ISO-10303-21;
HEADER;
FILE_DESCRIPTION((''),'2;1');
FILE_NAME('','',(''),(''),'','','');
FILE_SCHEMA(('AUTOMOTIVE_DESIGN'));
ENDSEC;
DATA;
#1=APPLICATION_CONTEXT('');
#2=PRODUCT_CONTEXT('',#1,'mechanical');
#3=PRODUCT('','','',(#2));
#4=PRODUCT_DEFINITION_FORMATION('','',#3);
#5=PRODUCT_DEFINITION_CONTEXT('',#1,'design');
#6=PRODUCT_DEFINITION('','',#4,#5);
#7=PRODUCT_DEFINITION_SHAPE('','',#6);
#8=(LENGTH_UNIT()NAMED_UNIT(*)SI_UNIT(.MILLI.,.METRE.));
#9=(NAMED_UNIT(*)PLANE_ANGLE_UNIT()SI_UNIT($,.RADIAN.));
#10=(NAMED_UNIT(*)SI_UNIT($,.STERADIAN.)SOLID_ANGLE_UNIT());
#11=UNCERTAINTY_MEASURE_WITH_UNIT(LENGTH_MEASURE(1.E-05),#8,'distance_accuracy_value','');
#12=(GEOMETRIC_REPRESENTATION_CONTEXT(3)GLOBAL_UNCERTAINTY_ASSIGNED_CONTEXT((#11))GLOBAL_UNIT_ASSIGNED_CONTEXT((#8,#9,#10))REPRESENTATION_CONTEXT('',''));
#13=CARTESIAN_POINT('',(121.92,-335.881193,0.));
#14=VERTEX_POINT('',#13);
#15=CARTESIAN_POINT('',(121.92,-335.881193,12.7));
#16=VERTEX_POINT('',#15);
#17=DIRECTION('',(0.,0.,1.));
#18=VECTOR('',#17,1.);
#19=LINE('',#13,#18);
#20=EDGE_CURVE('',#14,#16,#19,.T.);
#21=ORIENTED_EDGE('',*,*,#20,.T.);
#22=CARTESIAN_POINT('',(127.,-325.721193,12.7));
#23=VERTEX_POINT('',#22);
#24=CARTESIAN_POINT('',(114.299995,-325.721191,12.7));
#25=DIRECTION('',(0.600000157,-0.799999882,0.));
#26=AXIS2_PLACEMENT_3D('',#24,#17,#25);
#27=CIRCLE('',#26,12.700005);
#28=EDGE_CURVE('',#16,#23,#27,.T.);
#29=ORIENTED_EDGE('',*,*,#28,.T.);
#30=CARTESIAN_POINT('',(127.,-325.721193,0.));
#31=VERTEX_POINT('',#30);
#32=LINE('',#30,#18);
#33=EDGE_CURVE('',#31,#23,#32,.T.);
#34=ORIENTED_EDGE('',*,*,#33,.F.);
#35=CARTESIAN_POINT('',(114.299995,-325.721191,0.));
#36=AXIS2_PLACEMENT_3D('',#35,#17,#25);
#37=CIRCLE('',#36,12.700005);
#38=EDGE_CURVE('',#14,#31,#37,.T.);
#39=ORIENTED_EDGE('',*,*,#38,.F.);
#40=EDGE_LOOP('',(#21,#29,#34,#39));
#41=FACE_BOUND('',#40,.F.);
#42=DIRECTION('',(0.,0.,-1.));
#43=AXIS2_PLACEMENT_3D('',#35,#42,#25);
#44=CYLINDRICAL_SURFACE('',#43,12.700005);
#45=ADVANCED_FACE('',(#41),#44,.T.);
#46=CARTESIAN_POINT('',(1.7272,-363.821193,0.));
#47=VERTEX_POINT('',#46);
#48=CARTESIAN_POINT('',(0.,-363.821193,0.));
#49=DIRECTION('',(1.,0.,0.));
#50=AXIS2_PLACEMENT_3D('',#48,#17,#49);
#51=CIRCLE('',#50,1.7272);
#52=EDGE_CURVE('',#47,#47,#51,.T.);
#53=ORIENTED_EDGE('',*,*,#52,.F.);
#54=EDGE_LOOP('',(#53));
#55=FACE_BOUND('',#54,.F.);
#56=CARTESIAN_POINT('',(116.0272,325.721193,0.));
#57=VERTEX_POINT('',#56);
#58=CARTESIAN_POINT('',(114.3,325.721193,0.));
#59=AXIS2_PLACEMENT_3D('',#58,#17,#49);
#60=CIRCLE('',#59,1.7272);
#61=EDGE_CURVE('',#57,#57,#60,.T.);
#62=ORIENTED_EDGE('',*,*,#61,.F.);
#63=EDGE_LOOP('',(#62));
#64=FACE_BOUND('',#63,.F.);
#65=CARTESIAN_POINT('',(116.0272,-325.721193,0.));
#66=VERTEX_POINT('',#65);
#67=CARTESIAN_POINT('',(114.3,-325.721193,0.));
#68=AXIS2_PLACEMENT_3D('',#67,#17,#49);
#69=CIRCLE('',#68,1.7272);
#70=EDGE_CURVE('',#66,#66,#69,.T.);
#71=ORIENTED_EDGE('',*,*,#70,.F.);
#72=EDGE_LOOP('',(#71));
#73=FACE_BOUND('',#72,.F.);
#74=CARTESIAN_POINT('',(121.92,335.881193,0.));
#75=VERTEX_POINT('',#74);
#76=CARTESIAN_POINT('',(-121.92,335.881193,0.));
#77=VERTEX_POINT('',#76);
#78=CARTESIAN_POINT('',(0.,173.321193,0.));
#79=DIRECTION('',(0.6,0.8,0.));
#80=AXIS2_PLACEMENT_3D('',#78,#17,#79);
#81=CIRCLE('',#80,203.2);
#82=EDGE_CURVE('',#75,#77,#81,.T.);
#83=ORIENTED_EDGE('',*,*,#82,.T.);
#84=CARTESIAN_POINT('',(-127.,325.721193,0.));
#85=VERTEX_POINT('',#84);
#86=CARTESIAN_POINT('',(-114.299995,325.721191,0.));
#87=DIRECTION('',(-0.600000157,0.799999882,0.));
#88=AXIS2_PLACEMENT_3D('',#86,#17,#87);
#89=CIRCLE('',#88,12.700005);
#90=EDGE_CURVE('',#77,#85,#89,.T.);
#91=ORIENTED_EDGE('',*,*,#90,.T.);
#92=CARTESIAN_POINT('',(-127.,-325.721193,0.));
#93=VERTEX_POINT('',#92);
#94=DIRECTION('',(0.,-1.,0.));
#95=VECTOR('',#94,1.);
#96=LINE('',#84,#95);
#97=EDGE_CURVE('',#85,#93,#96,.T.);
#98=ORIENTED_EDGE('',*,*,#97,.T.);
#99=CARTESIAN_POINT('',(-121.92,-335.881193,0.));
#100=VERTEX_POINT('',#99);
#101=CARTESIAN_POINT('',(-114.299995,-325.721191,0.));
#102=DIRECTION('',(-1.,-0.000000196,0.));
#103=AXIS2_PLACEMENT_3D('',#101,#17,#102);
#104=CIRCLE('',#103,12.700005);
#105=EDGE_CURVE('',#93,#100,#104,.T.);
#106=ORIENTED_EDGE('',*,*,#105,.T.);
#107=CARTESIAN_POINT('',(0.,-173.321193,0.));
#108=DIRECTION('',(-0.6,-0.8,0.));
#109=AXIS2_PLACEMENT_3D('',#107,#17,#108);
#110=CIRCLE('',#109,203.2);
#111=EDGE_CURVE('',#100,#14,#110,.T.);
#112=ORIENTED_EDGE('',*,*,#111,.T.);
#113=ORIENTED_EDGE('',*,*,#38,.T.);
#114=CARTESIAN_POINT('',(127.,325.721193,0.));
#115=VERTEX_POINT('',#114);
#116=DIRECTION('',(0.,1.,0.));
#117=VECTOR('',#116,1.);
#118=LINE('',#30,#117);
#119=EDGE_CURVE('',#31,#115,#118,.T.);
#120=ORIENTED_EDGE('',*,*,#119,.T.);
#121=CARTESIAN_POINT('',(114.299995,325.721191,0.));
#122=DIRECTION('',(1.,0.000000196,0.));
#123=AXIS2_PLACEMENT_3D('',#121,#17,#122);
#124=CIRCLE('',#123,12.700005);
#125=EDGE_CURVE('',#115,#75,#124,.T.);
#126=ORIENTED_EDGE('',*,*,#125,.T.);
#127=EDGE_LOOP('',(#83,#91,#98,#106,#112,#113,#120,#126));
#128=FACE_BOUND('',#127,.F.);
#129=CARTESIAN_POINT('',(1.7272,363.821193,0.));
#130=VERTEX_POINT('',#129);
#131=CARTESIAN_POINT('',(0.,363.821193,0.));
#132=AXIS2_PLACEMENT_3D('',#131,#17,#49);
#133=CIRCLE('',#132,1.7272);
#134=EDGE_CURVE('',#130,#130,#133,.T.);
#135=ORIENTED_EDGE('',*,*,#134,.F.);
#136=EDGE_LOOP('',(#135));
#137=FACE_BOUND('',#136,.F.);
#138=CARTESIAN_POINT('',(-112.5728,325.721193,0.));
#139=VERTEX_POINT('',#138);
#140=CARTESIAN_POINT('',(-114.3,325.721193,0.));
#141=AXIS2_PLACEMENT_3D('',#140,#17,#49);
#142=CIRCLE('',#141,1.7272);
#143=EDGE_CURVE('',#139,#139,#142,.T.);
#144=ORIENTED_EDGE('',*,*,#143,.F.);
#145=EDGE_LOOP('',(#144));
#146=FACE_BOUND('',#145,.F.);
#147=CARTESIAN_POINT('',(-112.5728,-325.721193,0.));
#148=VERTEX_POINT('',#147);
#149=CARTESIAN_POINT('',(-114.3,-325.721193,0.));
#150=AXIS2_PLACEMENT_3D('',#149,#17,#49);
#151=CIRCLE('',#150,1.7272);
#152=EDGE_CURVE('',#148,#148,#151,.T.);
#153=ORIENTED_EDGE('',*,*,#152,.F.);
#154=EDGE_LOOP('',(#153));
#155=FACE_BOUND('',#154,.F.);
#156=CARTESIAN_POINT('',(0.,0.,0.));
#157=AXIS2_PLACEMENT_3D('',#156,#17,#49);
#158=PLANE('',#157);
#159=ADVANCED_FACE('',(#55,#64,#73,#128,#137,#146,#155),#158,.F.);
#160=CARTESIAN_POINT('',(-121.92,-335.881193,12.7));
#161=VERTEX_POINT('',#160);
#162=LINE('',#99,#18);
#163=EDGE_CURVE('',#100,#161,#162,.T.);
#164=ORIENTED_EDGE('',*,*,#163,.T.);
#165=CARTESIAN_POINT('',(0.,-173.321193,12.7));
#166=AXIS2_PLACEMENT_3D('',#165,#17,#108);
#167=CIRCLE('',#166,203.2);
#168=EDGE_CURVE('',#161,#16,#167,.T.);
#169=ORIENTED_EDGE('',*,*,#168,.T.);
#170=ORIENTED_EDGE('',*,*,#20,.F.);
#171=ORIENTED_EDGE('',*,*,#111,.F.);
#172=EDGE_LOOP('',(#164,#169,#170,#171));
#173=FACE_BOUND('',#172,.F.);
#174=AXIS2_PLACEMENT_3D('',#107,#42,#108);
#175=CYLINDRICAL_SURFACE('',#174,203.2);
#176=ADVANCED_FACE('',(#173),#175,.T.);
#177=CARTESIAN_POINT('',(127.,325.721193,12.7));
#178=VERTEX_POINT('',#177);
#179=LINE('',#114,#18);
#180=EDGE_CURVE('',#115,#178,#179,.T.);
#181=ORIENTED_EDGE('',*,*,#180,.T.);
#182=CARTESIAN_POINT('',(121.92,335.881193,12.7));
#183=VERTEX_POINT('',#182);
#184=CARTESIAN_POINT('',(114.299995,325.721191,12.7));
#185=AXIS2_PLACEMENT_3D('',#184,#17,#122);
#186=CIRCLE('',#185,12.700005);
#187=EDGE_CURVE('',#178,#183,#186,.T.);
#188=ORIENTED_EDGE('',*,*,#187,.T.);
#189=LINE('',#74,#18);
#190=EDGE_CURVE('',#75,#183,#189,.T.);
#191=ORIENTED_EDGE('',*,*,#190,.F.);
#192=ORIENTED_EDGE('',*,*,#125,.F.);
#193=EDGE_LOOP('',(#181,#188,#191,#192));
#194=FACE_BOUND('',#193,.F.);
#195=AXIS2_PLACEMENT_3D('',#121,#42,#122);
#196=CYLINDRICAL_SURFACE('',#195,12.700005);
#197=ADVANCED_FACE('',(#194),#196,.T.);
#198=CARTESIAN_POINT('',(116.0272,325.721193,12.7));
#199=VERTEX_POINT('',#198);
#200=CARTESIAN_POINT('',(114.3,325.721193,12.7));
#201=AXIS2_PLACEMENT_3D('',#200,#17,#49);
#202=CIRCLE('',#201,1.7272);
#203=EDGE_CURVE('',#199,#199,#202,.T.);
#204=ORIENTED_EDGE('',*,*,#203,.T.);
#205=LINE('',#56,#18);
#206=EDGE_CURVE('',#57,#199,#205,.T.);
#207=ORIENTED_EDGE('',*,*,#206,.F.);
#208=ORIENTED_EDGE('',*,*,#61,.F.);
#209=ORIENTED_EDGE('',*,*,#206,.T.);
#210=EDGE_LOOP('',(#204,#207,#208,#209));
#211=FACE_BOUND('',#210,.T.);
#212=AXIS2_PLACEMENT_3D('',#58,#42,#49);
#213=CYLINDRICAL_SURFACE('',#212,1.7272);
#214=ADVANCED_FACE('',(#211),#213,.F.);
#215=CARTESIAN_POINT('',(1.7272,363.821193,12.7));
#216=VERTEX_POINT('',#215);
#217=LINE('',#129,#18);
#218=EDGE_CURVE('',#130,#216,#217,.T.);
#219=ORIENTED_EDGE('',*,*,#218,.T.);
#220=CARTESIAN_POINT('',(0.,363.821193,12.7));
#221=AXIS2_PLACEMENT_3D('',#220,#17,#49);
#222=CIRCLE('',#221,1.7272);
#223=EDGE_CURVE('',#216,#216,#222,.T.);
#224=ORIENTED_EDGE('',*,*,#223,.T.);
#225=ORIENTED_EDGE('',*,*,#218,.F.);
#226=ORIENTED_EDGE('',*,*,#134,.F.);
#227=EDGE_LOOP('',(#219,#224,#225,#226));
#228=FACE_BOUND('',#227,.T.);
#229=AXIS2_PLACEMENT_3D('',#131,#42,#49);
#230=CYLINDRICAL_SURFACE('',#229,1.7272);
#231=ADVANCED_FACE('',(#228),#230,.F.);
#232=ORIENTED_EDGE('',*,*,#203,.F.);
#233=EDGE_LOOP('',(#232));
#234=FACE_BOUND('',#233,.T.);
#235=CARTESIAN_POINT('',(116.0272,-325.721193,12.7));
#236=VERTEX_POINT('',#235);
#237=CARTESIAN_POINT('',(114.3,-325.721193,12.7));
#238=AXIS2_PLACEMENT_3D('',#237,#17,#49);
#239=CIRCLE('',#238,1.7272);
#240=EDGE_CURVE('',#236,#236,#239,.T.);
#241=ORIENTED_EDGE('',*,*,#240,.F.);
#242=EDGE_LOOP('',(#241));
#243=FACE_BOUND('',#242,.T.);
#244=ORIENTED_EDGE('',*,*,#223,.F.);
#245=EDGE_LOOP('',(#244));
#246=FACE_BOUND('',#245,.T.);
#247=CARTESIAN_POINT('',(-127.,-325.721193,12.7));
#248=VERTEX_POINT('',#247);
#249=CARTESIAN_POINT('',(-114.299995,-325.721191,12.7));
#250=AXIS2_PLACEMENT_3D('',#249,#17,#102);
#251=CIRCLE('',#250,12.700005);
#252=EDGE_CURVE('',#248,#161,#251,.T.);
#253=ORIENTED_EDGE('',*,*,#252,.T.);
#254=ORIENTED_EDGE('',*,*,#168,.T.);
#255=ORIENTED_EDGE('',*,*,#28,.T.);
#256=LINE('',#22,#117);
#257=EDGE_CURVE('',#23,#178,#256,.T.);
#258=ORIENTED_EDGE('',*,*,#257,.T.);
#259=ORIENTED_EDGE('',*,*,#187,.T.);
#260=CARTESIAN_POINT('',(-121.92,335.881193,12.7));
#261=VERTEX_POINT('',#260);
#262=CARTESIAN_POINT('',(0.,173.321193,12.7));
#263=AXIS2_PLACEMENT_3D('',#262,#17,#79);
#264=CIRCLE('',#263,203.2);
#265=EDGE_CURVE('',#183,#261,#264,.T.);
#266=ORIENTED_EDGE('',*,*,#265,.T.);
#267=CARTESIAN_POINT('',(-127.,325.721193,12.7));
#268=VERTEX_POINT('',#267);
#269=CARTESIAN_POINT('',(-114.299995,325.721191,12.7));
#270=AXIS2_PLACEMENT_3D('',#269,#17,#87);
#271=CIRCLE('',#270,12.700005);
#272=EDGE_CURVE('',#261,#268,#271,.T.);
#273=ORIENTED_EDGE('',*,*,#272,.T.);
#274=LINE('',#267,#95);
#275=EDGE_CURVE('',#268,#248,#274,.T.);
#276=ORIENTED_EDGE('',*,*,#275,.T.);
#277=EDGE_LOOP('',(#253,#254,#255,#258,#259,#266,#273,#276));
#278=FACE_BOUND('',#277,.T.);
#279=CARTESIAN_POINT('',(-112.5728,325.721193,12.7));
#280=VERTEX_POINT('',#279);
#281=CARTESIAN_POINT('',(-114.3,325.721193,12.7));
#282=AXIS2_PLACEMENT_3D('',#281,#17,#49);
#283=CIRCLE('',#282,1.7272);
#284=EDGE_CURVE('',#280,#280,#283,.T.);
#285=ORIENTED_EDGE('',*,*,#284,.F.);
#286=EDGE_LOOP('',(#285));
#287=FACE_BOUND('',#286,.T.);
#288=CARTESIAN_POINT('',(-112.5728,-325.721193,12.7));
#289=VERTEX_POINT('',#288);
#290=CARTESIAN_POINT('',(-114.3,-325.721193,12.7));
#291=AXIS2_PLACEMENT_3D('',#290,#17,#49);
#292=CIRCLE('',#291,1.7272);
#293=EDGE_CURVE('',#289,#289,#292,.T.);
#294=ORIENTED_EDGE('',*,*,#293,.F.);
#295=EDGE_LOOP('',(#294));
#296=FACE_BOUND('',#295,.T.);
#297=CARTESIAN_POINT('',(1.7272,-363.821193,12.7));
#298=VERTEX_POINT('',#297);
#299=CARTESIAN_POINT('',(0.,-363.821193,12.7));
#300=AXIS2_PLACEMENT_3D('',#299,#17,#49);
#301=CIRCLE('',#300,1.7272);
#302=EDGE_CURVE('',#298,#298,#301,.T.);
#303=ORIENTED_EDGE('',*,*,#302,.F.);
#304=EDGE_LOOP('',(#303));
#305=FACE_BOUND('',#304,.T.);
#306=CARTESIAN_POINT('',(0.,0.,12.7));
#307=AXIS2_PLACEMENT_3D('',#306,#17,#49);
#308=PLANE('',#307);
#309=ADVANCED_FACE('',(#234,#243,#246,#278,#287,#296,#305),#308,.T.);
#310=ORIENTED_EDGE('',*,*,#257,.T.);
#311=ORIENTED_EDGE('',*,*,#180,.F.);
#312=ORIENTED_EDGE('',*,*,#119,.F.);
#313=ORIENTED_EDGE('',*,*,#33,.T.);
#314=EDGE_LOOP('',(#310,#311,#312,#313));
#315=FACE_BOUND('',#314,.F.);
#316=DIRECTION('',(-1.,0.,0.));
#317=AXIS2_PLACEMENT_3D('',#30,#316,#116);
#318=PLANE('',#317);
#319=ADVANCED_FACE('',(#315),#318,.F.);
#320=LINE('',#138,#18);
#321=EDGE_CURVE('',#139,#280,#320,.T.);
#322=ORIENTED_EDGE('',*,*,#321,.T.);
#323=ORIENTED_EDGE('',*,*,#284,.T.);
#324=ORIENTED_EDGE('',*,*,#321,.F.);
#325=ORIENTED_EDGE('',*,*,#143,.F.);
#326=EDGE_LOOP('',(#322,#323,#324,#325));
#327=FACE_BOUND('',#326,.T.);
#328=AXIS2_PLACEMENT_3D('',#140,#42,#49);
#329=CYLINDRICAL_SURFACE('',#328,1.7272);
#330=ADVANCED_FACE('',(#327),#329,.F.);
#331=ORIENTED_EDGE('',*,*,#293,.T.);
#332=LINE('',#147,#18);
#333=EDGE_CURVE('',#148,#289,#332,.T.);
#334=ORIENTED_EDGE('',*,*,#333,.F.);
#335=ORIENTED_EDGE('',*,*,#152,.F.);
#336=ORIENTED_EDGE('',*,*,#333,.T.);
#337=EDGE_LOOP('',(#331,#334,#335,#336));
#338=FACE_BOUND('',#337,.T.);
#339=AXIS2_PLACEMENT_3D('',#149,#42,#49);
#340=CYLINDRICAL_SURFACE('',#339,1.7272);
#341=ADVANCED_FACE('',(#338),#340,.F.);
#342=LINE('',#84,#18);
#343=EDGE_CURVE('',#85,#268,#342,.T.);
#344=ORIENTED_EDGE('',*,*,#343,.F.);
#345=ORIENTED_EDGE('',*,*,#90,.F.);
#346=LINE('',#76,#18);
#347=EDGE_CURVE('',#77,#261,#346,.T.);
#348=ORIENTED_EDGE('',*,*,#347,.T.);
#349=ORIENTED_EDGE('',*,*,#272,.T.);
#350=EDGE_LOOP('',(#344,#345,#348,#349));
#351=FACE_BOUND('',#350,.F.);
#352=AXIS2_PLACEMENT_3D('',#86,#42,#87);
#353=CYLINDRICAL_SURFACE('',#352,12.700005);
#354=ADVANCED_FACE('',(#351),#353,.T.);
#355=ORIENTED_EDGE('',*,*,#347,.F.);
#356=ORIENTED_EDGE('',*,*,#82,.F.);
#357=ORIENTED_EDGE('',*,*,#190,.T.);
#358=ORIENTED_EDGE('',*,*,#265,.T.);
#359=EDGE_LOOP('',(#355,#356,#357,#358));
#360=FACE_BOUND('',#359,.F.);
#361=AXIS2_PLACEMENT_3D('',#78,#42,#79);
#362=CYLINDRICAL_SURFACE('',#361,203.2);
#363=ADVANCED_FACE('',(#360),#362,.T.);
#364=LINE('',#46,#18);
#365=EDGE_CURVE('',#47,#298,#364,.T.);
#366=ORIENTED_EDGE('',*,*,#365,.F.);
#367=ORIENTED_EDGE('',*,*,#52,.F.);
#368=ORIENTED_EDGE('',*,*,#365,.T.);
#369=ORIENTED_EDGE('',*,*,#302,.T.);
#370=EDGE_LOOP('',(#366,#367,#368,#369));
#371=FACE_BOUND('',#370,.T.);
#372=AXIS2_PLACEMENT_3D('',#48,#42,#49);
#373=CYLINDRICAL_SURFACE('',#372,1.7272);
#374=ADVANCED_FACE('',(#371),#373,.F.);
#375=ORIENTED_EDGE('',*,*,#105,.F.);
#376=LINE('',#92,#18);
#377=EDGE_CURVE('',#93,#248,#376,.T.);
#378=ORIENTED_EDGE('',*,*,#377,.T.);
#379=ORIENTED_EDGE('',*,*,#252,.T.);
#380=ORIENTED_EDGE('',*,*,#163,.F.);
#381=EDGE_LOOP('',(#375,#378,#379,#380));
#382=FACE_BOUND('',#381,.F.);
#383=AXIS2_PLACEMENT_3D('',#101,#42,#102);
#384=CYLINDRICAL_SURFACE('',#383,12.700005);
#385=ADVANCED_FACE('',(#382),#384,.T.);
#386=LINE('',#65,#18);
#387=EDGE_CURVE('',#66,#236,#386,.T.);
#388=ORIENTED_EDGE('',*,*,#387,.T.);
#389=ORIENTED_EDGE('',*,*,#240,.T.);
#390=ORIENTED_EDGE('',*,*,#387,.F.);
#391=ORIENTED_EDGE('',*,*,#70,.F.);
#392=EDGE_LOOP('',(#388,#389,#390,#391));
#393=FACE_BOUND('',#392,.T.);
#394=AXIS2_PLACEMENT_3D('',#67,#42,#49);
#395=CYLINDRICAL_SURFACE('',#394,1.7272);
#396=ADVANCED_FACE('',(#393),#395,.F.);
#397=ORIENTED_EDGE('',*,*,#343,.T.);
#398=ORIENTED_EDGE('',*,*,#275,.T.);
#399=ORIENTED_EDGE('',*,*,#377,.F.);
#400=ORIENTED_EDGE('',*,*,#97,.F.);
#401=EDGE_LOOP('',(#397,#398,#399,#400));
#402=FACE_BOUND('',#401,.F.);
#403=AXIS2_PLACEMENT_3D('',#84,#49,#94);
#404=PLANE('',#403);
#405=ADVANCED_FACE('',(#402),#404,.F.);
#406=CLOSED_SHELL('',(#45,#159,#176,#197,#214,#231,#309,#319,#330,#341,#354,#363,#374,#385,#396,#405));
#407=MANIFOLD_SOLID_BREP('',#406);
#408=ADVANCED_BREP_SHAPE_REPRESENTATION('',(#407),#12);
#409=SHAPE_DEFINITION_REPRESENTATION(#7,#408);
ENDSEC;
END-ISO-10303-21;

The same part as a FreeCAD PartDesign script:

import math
import FreeCAD as App
import Part
import Sketcher
Q = App.Units.Quantity

doc = App.newDocument("Part")
body = doc.addObject("PartDesign::Body", "Body")

# Sketch on XY plane
sketch1 = body.newObject("Sketcher::SketchObject", "Sketch")
sketch1.AttachmentSupport = (doc.getObject("XY_Plane"), [""])
sketch1.MapMode = "FlatFace"
sketch1.addGeometry([
    Part.LineSegment(App.Vector(127, -325.721193, 0), App.Vector(127, 325.721193, 0)),  # 0
    Part.ArcOfCircle(Part.Circle(App.Vector(114.299995, 325.721191, 0), App.Vector(0, 0, 1), 12.700005), math.radians(0.000011), math.radians(53.130091)),  # 1
    Part.ArcOfCircle(Part.Circle(App.Vector(0, 173.321193, 0), App.Vector(0, 0, 1), 203.2), math.radians(53.130102), math.radians(126.869898)),  # 2
    Part.ArcOfCircle(Part.Circle(App.Vector(-114.299995, 325.721191, 0), App.Vector(0, 0, 1), 12.700005), math.radians(126.869909), math.radians(179.999989)),  # 3
    Part.LineSegment(App.Vector(-127, 325.721193, 0), App.Vector(-127, -325.721193, 0)),  # 4
    Part.ArcOfCircle(Part.Circle(App.Vector(-114.299995, -325.721191, 0), App.Vector(0, 0, 1), 12.700005), math.radians(-179.999989), math.radians(-126.869909)),  # 5
    Part.ArcOfCircle(Part.Circle(App.Vector(0, -173.321193, 0), App.Vector(0, 0, 1), 203.2), math.radians(-126.869898), math.radians(-53.130102)),  # 6
    Part.ArcOfCircle(Part.Circle(App.Vector(114.299995, -325.721191, 0), App.Vector(0, 0, 1), 12.700005), math.radians(-53.130091), math.radians(-0.000011)),  # 7
    Part.Circle(App.Vector(-114.3, -325.721193, 0), App.Vector(0, 0, 1), 1.7272),  # 8
    Part.Circle(App.Vector(0, -363.821193, 0), App.Vector(0, 0, 1), 1.7272),  # 9
    Part.Circle(App.Vector(114.3, -325.721193, 0), App.Vector(0, 0, 1), 1.7272),  # 10
    Part.Circle(App.Vector(-114.3, 325.721193, 0), App.Vector(0, 0, 1), 1.7272),  # 11
    Part.Circle(App.Vector(0, 363.821193, 0), App.Vector(0, 0, 1), 1.7272),  # 12
    Part.Circle(App.Vector(114.3, 325.721193, 0), App.Vector(0, 0, 1), 1.7272),  # 13
], False)
sketch1.addConstraint([
    Sketcher.Constraint("Tangent", 0, 2, 1, 1),
    Sketcher.Constraint("Tangent", 1, 2, 2, 1),
    Sketcher.Constraint("Tangent", 2, 2, 3, 1),
    Sketcher.Constraint("Tangent", 3, 2, 4, 1),
    Sketcher.Constraint("Tangent", 4, 2, 5, 1),
    Sketcher.Constraint("Tangent", 5, 2, 6, 1),
    Sketcher.Constraint("Tangent", 6, 2, 7, 1),
    Sketcher.Constraint("Tangent", 7, 2, 0, 1),
    Sketcher.Constraint("Vertical", 0),
    Sketcher.Constraint("Vertical", 4),
    Sketcher.Constraint("Coincident", 8, 3, 5, 3),
    Sketcher.Constraint("Coincident", 10, 3, 7, 3),
    Sketcher.Constraint("Coincident", 11, 3, 3, 3),
    Sketcher.Constraint("Coincident", 13, 3, 1, 3),
    Sketcher.Constraint("Equal", 1, 3),
    Sketcher.Constraint("Equal", 3, 5),
    Sketcher.Constraint("Equal", 2, 6),
    Sketcher.Constraint("Equal", 5, 7),
    Sketcher.Constraint("Equal", 8, 9),
    Sketcher.Constraint("Equal", 9, 10),
    Sketcher.Constraint("Equal", 10, 11),
    Sketcher.Constraint("Equal", 11, 12),
    Sketcher.Constraint("Equal", 12, 13),
    Sketcher.Constraint("Symmetric", 1, 3, 5, 3, -1, 1),
    Sketcher.Constraint("Symmetric", 9, 3, 12, 3, -1, 1),
    Sketcher.Constraint("Symmetric", 2, 3, 6, 3, -1),
    Sketcher.Constraint("PointOnObject", 9, 3, -2),
    Sketcher.Constraint("Radius", 2, Q("8 in")),
    Sketcher.Constraint("Radius", 1, Q("0.5000002 in")),
    Sketcher.Constraint("Diameter", 8, Q("0.136 in")),
    Sketcher.Constraint("DistanceX", -1, 1, 0, 2, Q("5 in")),
    Sketcher.Constraint("DistanceY", 9, 3, 5, 3, Q("1.5000001 in")),
    Sketcher.Constraint("DistanceY", 0, 1, 0, 2, Q("651.442386 mm")),
])
pad1 = body.newObject("PartDesign::Pad", "Pad")
pad1.Profile = sketch1
pad1.Length = Q("0.5 in")

doc.recompute()
